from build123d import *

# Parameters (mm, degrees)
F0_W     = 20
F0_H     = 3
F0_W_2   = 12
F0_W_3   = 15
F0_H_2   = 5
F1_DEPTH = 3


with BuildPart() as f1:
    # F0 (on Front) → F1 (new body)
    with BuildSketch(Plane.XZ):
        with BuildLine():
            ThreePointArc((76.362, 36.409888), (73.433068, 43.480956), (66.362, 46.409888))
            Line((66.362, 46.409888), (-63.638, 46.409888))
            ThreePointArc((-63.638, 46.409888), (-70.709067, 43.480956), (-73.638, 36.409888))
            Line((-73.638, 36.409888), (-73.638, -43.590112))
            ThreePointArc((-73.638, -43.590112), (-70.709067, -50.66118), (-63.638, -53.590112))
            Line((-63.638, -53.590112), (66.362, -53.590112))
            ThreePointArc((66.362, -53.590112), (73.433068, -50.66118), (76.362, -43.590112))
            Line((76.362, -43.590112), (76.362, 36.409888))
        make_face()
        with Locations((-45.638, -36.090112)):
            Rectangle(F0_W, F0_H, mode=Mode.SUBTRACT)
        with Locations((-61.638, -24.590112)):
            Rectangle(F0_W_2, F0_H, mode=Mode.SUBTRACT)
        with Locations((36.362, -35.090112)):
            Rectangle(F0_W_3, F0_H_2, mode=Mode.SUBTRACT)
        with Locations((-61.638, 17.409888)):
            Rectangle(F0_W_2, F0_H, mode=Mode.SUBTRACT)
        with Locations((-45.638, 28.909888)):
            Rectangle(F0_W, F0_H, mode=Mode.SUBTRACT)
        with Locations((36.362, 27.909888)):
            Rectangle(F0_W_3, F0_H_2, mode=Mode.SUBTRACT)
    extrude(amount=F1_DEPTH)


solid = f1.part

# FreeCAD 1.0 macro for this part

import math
import FreeCAD as App
import Part
import Sketcher

doc = App.newDocument("Part")
body = doc.addObject("PartDesign::Body", "Body")

# Sketch on XZ plane
sketch1 = doc.addObject("Sketcher::SketchObject", "Sketch")
body.addObject(sketch1)
sketch1.AttachmentSupport = (doc.XZ_Plane, [""])
sketch1.MapMode = "FlatFace"
sketch1.addGeometry(Part.ArcOfCircle(Part.Circle(App.Vector(66.4, 36.4, 0), App.Vector(0, 0, 1), 10), math.radians(0), math.radians(90)), False)
sketch1.addGeometry(Part.LineSegment(App.Vector(66.4, 46.4, 0), App.Vector(-63.6, 46.4, 0)), False)
sketch1.addGeometry(Part.ArcOfCircle(Part.Circle(App.Vector(-63.6, 36.4, 0), App.Vector(0, 0, 1), 10), math.radians(90), math.radians(180)), False)
sketch1.addGeometry(Part.LineSegment(App.Vector(-73.6, 36.4, 0), App.Vector(-73.6, -43.6, 0)), False)
sketch1.addGeometry(Part.ArcOfCircle(Part.Circle(App.Vector(-63.6, -43.6, 0), App.Vector(0, 0, 1), 10), math.radians(-180), math.radians(-90)), False)
sketch1.addGeometry(Part.LineSegment(App.Vector(-63.6, -53.6, 0), App.Vector(66.4, -53.6, 0)), False)
sketch1.addGeometry(Part.ArcOfCircle(Part.Circle(App.Vector(66.4, -43.6, 0), App.Vector(0, 0, 1), 10), math.radians(-90), math.radians(0)), False)
sketch1.addGeometry(Part.LineSegment(App.Vector(76.4, -43.6, 0), App.Vector(76.4, 36.4, 0)), False)
sketch1.addGeometry(Part.LineSegment(App.Vector(-35.6, -37.6, 0), App.Vector(-55.6, -37.6, 0)), False)
sketch1.addGeometry(Part.LineSegment(App.Vector(-55.6, -37.6, 0), App.Vector(-55.6, -34.6, 0)), False)
sketch1.addGeometry(Part.LineSegment(App.Vector(-55.6, -34.6, 0), App.Vector(-35.6, -34.6, 0)), False)
sketch1.addGeometry(Part.LineSegment(App.Vector(-35.6, -34.6, 0), App.Vector(-35.6, -37.6, 0)), False)
sketch1.addGeometry(Part.LineSegment(App.Vector(-55.6, -26.1, 0), App.Vector(-67.6, -26.1, 0)), False)
sketch1.addGeometry(Part.LineSegment(App.Vector(-67.6, -26.1, 0), App.Vector(-67.6, -23.1, 0)), False)
sketch1.addGeometry(Part.LineSegment(App.Vector(-67.6, -23.1, 0), App.Vector(-55.6, -23.1, 0)), False)
sketch1.addGeometry(Part.LineSegment(App.Vector(-55.6, -23.1, 0), App.Vector(-55.6, -26.1, 0)), False)
sketch1.addGeometry(Part.LineSegment(App.Vector(43.9, -37.6, 0), App.Vector(28.9, -37.6, 0)), False)
sketch1.addGeometry(Part.LineSegment(App.Vector(28.9, -37.6, 0), App.Vector(28.9, -32.6, 0)), False)
sketch1.addGeometry(Part.LineSegment(App.Vector(28.9, -32.6, 0), App.Vector(43.9, -32.6, 0)), False)
sketch1.addGeometry(Part.LineSegment(App.Vector(43.9, -32.6, 0), App.Vector(43.9, -37.6, 0)), False)
sketch1.addGeometry(Part.LineSegment(App.Vector(-55.6, 15.9, 0), App.Vector(-67.6, 15.9, 0)), False)
sketch1.addGeometry(Part.LineSegment(App.Vector(-67.6, 15.9, 0), App.Vector(-67.6, 18.9, 0)), False)
sketch1.addGeometry(Part.LineSegment(App.Vector(-67.6, 18.9, 0), App.Vector(-55.6, 18.9, 0)), False)
sketch1.addGeometry(Part.LineSegment(App.Vector(-55.6, 18.9, 0), App.Vector(-55.6, 15.9, 0)), False)
sketch1.addGeometry(Part.LineSegment(App.Vector(-35.6, 27.4, 0), App.Vector(-55.6, 27.4, 0)), False)
sketch1.addGeometry(Part.LineSegment(App.Vector(-55.6, 27.4, 0), App.Vector(-55.6, 30.4, 0)), False)
sketch1.addGeometry(Part.LineSegment(App.Vector(-55.6, 30.4, 0), App.Vector(-35.6, 30.4, 0)), False)
sketch1.addGeometry(Part.LineSegment(App.Vector(-35.6, 30.4, 0), App.Vector(-35.6, 27.4, 0)), False)
sketch1.addGeometry(Part.LineSegment(App.Vector(43.9, 25.4, 0), App.Vector(28.9, 25.4, 0)), False)
sketch1.addGeometry(Part.LineSegment(App.Vector(28.9, 25.4, 0), App.Vector(28.9, 30.4, 0)), False)
sketch1.addGeometry(Part.LineSegment(App.Vector(28.9, 30.4, 0), App.Vector(43.9, 30.4, 0)), False)
sketch1.addGeometry(Part.LineSegment(App.Vector(43.9, 30.4, 0), App.Vector(43.9, 25.4, 0)), False)
sketch1.addConstraint(Sketcher.Constraint("Tangent", 0, 2, 1, 1))
sketch1.addConstraint(Sketcher.Constraint("Tangent", 1, 2, 2, 1))
sketch1.addConstraint(Sketcher.Constraint("Tangent", 2, 2, 3, 1))
sketch1.addConstraint(Sketcher.Constraint("Tangent", 3, 2, 4, 1))
sketch1.addConstraint(Sketcher.Constraint("Tangent", 4, 2, 5, 1))
sketch1.addConstraint(Sketcher.Constraint("Tangent", 5, 2, 6, 1))
sketch1.addConstraint(Sketcher.Constraint("Tangent", 6, 2, 7, 1))
sketch1.addConstraint(Sketcher.Constraint("Tangent", 7, 2, 0, 1))
sketch1.addConstraint(Sketcher.Constraint("Coincident", 8, 2, 9, 1))
sketch1.addConstraint(Sketcher.Constraint("Coincident", 9, 2, 10, 1))
sketch1.addConstraint(Sketcher.Constraint("Coincident", 10, 2, 11, 1))
sketch1.addConstraint(Sketcher.Constraint("Coincident", 11, 2, 8, 1))
sketch1.addConstraint(Sketcher.Constraint("Coincident", 12, 2, 13, 1))
sketch1.addConstraint(Sketcher.Constraint("Coincident", 13, 2, 14, 1))
sketch1.addConstraint(Sketcher.Constraint("Coincident", 14, 2, 15, 1))
sketch1.addConstraint(Sketcher.Constraint("Coincident", 15, 2, 12, 1))
sketch1.addConstraint(Sketcher.Constraint("Coincident", 16, 2, 17, 1))
sketch1.addConstraint(Sketcher.Constraint("Coincident", 17, 2, 18, 1))
sketch1.addConstraint(Sketcher.Constraint("Coincident", 18, 2, 19, 1))
sketch1.addConstraint(Sketcher.Constraint("Coincident", 19, 2, 16, 1))
sketch1.addConstraint(Sketcher.Constraint("Coincident", 20, 2, 21, 1))
sketch1.addConstraint(Sketcher.Constraint("Coincident", 21, 2, 22, 1))
sketch1.addConstraint(Sketcher.Constraint("Coincident", 22, 2, 23, 1))
sketch1.addConstraint(Sketcher.Constraint("Coincident", 23, 2, 20, 1))
sketch1.addConstraint(Sketcher.Constraint("Coincident", 24, 2, 25, 1))
sketch1.addConstraint(Sketcher.Constraint("Coincident", 25, 2, 26, 1))
sketch1.addConstraint(Sketcher.Constraint("Coincident", 26, 2, 27, 1))
sketch1.addConstraint(Sketcher.Constraint("Coincident", 27, 2, 24, 1))
sketch1.addConstraint(Sketcher.Constraint("Coincident", 28, 2, 29, 1))
sketch1.addConstraint(Sketcher.Constraint("Coincident", 29, 2, 30, 1))
sketch1.addConstraint(Sketcher.Constraint("Coincident", 30, 2, 31, 1))
sketch1.addConstraint(Sketcher.Constraint("Coincident", 31, 2, 28, 1))
sketch1.addConstraint(Sketcher.Constraint("Horizontal", 1))
sketch1.addConstraint(Sketcher.Constraint("Vertical", 3))
sketch1.addConstraint(Sketcher.Constraint("Horizontal", 5))
sketch1.addConstraint(Sketcher.Constraint("Vertical", 7))
sketch1.addConstraint(Sketcher.Constraint("Horizontal", 8))
sketch1.addConstraint(Sketcher.Constraint("Vertical", 9))
sketch1.addConstraint(Sketcher.Constraint("Horizontal", 10))
sketch1.addConstraint(Sketcher.Constraint("Vertical", 11))
sketch1.addConstraint(Sketcher.Constraint("Horizontal", 12))
sketch1.addConstraint(Sketcher.Constraint("Vertical", 13))
sketch1.addConstraint(Sketcher.Constraint("Horizontal", 14))
sketch1.addConstraint(Sketcher.Constraint("Vertical", 15))
sketch1.addConstraint(Sketcher.Constraint("Horizontal", 16))
sketch1.addConstraint(Sketcher.Constraint("Vertical", 17))
sketch1.addConstraint(Sketcher.Constraint("Horizontal", 18))
sketch1.addConstraint(Sketcher.Constraint("Vertical", 19))
sketch1.addConstraint(Sketcher.Constraint("Horizontal", 20))
sketch1.addConstraint(Sketcher.Constraint("Vertical", 21))
sketch1.addConstraint(Sketcher.Constraint("Horizontal", 22))
sketch1.addConstraint(Sketcher.Constraint("Vertical", 23))
sketch1.addConstraint(Sketcher.Constraint("Horizontal", 24))
sketch1.addConstraint(Sketcher.Constraint("Vertical", 25))
sketch1.addConstraint(Sketcher.Constraint("Horizontal", 26))
sketch1.addConstraint(Sketcher.Constraint("Vertical", 27))
sketch1.addConstraint(Sketcher.Constraint("Horizontal", 28))
sketch1.addConstraint(Sketcher.Constraint("Vertical", 29))
sketch1.addConstraint(Sketcher.Constraint("Horizontal", 30))
sketch1.addConstraint(Sketcher.Constraint("Vertical", 31))
sketch1.addConstraint(Sketcher.Constraint("Equal", 0, 2))
sketch1.addConstraint(Sketcher.Constraint("Equal", 2, 4))
sketch1.addConstraint(Sketcher.Constraint("Equal", 4, 6))
sketch1.addConstraint(Sketcher.Constraint("Horizontal", 11, 2, 16, 2))
sketch1.addConstraint(Sketcher.Constraint("Horizontal", 26, 2, 29, 2))
sketch1.addConstraint(Sketcher.Constraint("Vertical", 9, 2, 14, 2))
sketch1.addConstraint(Sketcher.Constraint("Vertical", 13, 2, 20, 2))
sketch1.addConstraint(Sketcher.Constraint("Vertical", 15, 2, 22, 2))
sketch1.addConstraint(Sketcher.Constraint("Vertical", 23, 2, 24, 2))
sketch1.addConstraint(Sketcher.Constraint("Vertical", 11, 2, 26, 2))
sketch1.addConstraint(Sketcher.Constraint("Vertical", 17, 2, 28, 2))
sketch1.addConstraint(Sketcher.Constraint("Vertical", 19, 2, 30, 2))
sketch1.addConstraint(Sketcher.Constraint("Equal", 11, 13))
sketch1.addConstraint(Sketcher.Constraint("Equal", 15, 21))
sketch1.addConstraint(Sketcher.Constraint("Equal", 23, 25))
sketch1.addConstraint(Sketcher.Constraint("Equal", 19, 29))
sketch1.addConstraint(Sketcher.Constraint("Radius", 0, 9.999999))
sketch1.addConstraint(Sketcher.Constraint("DistanceX", 1, 2, 1, 1, 130.0))
sketch1.addConstraint(Sketcher.Constraint("DistanceX", 8, 2, 8, 1, 20.0))
sketch1.addConstraint(Sketcher.Constraint("DistanceX", 12, 2, 12, 1, 12.0))
sketch1.addConstraint(Sketcher.Constraint("DistanceX", 16, 2, 16, 1, 15.0))
sketch1.addConstraint(Sketcher.Constraint("DistanceY", 3, 2, 3, 1, 80.0))
sketch1.addConstraint(Sketcher.Constraint("DistanceY", 9, 1, 9, 2, 3.0))
sketch1.addConstraint(Sketcher.Constraint("DistanceY", 17, 1, 17, 2, 5.0))
sketch1.addConstraint(Sketcher.Constraint("DistanceX", 4, 3, 8, 2, 7.999999))
sketch1.addConstraint(Sketcher.Constraint("DistanceY", 4, 3, 8, 2, 5.999999))
sketch1.addConstraint(Sketcher.Constraint("DistanceY", 13, 2, 20, 2, 39.0))
sketch1.addConstraint(Sketcher.Constraint("DistanceY", 24, 2, 2, 3, 8.999999))
sketch1.addConstraint(Sketcher.Constraint("DistanceY", 9, 2, 12, 2, 8.5))
sketch1.addConstraint(Sketcher.Constraint("DistanceX", 16, 2, 6, 3, 37.500001))
sketch1.addConstraint(Sketcher.Constraint("DistanceX", -1, 1, 0, 3, 66.362001))
sketch1.addConstraint(Sketcher.Constraint("DistanceY", -1, 1, 0, 3, 36.409889))
pad1 = doc.addObject("PartDesign::Pad", "Pad")
body.addObject(pad1)
pad1.Profile = sketch1
pad1.Length = 3

doc.recompute()
